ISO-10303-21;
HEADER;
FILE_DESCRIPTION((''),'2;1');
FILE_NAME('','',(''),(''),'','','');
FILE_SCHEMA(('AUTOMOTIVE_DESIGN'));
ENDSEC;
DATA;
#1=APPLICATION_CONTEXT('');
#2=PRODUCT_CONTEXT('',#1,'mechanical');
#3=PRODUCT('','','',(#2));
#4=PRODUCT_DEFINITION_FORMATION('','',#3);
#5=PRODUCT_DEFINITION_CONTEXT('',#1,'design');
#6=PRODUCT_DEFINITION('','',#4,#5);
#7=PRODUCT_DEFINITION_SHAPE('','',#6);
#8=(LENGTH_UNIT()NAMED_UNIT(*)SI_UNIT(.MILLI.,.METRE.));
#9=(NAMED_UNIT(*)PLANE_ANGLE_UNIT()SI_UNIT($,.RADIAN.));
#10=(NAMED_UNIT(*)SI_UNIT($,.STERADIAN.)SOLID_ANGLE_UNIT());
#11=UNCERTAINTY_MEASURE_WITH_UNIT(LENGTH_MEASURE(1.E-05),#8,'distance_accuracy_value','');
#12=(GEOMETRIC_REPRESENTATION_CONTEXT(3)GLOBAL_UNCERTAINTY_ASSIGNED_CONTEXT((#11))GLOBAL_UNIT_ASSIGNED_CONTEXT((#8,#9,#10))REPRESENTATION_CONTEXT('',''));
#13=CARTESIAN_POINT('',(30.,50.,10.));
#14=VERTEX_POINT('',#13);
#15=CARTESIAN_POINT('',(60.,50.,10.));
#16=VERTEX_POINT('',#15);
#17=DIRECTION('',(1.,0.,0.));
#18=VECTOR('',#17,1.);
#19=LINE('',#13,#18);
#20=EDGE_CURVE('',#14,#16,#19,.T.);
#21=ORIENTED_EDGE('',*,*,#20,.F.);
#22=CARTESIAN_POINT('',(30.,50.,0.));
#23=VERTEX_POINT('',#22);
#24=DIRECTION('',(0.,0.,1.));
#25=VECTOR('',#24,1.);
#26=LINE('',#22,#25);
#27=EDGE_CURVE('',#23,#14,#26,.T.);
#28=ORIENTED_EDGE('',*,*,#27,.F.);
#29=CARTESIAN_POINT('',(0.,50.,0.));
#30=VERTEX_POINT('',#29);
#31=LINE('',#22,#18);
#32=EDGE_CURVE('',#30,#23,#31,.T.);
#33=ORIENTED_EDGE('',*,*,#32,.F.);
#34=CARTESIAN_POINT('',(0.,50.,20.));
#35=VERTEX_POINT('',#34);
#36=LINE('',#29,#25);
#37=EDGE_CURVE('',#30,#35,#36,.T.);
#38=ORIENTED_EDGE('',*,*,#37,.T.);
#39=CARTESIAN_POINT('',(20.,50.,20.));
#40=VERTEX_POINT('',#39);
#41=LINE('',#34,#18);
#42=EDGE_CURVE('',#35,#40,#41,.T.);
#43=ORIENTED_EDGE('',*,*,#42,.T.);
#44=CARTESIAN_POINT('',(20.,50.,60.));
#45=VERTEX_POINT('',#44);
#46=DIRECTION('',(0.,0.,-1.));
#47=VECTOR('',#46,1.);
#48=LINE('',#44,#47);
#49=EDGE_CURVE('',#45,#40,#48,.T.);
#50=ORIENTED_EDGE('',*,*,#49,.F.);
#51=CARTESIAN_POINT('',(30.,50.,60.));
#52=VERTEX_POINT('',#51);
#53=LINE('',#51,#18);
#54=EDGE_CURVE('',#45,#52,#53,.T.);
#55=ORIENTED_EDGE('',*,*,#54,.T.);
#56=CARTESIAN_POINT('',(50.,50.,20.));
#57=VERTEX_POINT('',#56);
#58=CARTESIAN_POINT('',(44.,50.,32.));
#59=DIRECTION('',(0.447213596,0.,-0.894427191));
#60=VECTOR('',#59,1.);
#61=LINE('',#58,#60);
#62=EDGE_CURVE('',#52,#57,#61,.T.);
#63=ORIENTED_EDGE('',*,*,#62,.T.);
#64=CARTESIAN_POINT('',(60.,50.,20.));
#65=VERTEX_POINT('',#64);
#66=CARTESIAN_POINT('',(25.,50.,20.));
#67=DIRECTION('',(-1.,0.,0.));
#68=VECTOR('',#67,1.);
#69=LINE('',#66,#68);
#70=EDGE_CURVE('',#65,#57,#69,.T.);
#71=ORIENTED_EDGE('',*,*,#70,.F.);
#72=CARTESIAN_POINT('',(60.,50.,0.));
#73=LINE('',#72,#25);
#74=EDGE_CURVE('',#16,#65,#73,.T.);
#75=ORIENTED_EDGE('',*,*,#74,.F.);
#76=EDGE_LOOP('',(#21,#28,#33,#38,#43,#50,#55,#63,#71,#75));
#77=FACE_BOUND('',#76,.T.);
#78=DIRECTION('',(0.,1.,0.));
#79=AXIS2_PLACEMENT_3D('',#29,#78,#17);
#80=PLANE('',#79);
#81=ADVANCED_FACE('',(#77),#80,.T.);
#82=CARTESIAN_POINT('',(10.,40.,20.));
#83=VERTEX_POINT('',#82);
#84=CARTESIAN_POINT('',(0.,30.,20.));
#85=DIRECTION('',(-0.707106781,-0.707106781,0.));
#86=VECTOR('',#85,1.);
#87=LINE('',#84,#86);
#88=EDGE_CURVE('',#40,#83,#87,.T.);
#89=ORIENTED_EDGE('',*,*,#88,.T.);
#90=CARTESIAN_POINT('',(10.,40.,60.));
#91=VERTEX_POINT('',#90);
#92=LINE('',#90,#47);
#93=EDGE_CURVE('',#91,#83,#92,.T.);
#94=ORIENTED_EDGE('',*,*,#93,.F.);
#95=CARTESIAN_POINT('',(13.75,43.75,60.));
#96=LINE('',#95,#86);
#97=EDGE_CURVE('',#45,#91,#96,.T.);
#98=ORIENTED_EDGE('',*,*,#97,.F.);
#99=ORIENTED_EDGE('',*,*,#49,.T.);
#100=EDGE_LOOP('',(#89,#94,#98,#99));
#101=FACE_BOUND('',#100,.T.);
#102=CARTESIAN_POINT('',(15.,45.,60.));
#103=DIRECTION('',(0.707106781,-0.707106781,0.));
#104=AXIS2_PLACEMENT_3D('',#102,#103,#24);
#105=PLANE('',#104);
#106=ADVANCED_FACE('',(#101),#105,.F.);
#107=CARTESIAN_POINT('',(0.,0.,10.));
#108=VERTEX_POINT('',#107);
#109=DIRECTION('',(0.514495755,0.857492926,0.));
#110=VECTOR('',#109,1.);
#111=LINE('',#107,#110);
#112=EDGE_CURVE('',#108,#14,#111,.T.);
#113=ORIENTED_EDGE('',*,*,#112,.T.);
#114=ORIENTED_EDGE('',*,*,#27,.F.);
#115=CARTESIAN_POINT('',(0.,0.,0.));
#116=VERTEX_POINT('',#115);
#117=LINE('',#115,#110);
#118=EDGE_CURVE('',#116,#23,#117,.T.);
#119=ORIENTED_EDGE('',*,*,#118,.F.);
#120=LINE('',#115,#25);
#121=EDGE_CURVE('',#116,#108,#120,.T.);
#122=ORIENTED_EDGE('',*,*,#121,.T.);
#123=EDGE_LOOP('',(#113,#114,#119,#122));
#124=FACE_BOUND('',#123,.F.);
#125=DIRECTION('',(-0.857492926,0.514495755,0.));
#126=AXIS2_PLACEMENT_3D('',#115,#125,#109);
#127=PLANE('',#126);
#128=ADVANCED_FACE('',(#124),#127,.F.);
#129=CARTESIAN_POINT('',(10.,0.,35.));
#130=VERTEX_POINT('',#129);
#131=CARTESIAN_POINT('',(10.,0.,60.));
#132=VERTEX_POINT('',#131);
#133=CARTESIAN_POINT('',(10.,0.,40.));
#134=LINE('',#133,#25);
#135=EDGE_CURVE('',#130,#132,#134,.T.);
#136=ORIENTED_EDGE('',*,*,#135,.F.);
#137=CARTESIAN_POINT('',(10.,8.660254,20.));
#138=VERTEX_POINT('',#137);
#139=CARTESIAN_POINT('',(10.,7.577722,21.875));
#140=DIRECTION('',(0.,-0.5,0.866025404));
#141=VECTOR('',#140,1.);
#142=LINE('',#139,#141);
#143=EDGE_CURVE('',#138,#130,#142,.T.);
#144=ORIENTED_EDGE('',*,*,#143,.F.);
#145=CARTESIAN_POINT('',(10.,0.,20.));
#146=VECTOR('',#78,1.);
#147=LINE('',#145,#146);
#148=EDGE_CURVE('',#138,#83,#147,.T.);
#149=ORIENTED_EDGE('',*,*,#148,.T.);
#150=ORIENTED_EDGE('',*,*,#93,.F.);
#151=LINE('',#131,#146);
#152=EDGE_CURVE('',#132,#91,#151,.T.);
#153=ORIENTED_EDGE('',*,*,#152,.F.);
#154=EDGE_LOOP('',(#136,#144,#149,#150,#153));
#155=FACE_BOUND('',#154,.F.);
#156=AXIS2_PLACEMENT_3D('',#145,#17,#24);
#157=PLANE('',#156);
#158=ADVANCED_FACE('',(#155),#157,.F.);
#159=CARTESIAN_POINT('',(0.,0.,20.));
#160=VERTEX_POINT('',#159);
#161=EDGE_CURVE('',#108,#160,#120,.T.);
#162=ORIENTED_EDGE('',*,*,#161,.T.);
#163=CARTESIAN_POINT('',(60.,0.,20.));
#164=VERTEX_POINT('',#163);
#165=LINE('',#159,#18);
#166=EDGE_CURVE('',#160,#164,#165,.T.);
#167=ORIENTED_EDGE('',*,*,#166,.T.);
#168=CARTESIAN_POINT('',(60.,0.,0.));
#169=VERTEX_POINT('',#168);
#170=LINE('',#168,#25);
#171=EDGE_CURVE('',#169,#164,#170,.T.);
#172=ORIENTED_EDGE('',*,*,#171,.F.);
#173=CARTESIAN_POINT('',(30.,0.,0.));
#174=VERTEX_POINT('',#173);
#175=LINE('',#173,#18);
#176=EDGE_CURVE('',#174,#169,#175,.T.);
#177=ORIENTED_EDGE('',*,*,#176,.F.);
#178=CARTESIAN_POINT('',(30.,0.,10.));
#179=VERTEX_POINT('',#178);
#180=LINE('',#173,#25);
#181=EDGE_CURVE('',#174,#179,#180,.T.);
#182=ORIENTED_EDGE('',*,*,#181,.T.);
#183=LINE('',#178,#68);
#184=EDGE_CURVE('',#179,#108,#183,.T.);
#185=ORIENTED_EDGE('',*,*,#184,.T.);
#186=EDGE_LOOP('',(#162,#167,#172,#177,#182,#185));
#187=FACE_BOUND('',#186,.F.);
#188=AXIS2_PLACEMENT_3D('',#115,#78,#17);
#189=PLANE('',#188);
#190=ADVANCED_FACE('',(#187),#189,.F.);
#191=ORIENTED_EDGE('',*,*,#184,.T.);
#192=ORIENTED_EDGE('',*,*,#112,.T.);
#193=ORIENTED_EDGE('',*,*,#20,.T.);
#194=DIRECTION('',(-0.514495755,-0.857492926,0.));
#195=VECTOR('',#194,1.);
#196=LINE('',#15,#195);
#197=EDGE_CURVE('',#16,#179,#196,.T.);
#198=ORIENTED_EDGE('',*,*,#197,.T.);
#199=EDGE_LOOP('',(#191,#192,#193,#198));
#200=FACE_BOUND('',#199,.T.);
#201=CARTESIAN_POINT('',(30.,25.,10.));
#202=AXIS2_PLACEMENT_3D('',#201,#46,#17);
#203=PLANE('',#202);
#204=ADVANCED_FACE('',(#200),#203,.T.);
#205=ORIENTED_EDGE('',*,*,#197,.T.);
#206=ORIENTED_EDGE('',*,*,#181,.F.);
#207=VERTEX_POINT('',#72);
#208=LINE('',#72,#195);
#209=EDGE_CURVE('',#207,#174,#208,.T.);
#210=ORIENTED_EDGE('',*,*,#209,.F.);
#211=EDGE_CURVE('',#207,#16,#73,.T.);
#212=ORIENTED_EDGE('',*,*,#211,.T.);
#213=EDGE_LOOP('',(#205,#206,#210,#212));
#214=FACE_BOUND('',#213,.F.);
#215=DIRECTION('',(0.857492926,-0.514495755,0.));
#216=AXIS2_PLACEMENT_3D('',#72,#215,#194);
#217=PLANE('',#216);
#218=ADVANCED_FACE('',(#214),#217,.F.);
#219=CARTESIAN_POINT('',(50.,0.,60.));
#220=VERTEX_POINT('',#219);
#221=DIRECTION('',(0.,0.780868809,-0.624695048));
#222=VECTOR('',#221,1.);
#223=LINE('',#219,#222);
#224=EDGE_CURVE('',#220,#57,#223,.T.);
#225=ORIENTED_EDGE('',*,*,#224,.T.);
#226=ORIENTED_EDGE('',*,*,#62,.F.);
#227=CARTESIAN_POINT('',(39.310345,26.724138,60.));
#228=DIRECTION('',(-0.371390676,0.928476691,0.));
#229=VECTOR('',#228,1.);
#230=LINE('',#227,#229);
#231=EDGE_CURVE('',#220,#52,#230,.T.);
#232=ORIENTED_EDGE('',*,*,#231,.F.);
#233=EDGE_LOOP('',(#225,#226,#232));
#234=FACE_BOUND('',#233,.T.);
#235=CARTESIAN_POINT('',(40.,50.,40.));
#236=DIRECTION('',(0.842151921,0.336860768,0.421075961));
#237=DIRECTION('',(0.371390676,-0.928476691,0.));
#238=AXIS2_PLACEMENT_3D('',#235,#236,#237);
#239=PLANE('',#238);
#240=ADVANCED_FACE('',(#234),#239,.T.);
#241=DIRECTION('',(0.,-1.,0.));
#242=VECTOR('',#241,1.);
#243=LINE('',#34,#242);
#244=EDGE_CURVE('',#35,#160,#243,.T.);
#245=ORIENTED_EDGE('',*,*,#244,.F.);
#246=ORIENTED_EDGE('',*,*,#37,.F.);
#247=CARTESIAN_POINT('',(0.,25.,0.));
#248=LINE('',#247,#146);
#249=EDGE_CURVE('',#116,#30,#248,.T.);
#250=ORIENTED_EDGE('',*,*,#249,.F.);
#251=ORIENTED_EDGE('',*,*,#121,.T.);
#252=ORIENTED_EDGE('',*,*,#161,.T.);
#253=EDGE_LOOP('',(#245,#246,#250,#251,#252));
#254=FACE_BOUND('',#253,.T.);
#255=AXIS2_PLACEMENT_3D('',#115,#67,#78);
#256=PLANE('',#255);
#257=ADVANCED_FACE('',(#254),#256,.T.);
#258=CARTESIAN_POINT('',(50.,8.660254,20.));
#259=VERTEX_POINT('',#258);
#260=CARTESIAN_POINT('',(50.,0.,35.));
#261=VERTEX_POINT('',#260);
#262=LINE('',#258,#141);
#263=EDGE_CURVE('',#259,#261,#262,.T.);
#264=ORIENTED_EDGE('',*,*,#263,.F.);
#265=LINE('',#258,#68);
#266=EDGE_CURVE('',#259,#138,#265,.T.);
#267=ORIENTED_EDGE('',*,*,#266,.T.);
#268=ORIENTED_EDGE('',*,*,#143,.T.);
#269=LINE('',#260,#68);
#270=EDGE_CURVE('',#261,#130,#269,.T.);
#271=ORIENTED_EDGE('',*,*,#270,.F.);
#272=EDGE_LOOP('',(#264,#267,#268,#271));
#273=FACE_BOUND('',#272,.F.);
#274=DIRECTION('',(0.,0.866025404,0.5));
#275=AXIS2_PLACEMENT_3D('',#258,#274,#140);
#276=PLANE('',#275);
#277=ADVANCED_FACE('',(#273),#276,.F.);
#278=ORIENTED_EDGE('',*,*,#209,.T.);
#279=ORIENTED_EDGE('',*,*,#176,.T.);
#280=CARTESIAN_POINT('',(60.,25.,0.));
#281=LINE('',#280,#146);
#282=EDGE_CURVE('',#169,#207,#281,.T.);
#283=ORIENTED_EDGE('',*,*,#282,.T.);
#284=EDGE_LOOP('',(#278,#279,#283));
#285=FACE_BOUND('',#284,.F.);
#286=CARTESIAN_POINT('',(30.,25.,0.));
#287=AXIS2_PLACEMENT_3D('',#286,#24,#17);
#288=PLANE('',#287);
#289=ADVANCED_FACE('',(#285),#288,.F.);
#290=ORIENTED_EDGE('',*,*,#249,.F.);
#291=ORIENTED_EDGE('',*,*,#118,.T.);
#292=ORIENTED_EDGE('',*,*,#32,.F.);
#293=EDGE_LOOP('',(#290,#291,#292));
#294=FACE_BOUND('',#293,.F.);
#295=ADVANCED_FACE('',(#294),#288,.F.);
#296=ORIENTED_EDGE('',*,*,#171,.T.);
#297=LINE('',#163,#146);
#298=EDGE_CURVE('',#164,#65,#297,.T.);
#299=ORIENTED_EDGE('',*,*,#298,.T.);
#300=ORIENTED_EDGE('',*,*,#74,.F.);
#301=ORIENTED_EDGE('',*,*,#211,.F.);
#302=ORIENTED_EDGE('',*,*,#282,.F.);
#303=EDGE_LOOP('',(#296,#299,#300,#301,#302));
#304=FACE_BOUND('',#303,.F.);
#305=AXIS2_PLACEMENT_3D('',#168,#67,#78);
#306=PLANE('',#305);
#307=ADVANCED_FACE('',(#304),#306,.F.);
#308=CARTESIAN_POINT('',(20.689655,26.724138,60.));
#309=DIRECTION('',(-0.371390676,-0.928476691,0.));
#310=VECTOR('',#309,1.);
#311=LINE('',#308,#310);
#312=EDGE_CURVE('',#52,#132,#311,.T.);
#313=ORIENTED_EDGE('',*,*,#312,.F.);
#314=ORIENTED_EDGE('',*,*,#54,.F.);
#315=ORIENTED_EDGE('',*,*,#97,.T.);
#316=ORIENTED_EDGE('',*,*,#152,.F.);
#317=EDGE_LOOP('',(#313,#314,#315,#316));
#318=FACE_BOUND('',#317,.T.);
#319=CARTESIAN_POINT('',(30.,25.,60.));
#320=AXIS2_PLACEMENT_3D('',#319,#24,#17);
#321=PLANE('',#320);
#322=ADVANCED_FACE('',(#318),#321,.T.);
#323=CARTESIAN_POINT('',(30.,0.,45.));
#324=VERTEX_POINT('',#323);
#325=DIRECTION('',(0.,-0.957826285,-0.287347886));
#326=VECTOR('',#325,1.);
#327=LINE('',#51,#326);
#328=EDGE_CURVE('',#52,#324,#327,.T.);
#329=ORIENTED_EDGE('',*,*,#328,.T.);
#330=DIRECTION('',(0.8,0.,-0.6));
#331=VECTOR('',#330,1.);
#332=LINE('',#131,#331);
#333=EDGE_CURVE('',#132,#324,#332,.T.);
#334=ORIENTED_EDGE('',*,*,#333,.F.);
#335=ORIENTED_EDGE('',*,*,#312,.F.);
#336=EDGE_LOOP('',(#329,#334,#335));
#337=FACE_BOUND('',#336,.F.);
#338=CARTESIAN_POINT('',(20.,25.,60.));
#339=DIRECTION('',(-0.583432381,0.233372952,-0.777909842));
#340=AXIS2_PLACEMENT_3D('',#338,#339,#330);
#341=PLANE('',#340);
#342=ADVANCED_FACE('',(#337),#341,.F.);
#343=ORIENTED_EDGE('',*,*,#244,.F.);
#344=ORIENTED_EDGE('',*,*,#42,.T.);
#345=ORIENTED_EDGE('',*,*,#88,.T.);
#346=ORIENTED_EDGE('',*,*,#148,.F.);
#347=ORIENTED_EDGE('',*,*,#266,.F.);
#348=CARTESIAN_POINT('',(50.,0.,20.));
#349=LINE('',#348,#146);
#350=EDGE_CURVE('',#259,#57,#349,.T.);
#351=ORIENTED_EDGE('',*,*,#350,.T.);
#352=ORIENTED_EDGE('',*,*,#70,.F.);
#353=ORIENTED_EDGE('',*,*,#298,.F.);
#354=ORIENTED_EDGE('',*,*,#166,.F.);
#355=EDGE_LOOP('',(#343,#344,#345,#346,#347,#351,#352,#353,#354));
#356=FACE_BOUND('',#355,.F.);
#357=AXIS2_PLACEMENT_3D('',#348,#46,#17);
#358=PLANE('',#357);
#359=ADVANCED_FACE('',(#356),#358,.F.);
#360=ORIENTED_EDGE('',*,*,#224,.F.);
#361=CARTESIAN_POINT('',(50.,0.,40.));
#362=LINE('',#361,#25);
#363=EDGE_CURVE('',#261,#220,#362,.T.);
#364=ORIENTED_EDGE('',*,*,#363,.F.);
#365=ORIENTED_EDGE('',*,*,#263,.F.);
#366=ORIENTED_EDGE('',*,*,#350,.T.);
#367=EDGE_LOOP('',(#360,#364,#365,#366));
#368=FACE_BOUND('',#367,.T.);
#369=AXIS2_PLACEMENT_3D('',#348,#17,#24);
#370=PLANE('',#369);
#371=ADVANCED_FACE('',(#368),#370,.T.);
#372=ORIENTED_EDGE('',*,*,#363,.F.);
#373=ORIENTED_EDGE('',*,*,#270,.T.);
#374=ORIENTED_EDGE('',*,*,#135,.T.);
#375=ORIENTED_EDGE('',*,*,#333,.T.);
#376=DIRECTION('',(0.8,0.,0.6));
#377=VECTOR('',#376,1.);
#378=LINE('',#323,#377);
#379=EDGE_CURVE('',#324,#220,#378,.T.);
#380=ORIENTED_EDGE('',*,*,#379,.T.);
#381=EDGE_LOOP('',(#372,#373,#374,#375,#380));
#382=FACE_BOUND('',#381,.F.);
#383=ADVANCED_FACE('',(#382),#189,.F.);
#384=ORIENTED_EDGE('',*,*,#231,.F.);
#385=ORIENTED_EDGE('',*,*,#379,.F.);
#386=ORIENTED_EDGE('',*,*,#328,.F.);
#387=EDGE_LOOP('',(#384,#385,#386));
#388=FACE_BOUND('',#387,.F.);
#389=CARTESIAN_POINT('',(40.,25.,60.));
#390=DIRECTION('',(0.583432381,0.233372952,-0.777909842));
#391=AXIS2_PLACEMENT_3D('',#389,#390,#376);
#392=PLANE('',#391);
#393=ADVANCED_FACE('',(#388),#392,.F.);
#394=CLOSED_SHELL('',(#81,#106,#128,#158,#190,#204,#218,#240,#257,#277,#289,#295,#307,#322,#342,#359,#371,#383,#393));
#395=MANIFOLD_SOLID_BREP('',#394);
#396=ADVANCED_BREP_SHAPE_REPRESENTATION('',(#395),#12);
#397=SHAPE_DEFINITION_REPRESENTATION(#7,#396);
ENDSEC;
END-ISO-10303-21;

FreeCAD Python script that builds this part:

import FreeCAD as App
import Part
import Sketcher

V = App.Vector
Q = App.Units.Quantity


def edges_at(feature, points):
    """Names of the edges that pass closest to the given points."""
    edges = feature.Shape.Edges
    near = lambda p: min(range(len(edges)), key=lambda i: edges[i].distToShape(Part.Vertex(*p))[0])
    return sorted({f"Edge{near(p) + 1}" for p in points})


def add_polygon(sketch, points):
    """Adds a closed chain of lines whose ends are joined by coincident constraints."""
    first, n = sketch.GeometryCount, len(points)
    for a, b in zip(points, points[1:] + points[:1]):
        sketch.addGeometry(Part.LineSegment(App.Vector(*a, 0), App.Vector(*b, 0)), False)
    for i in range(n):
        sketch.addConstraint(Sketcher.Constraint("Coincident", first + i, 2, first + (i + 1) % n, 1))

doc = App.newDocument("Part")
body = doc.addObject("PartDesign::Body", "Body")

# Sketch on XY plane
sketch1 = body.newObject("Sketcher::SketchObject", "Sketch")
sketch1.AttachmentSupport = (doc.getObject("XY_Plane"), [""])
sketch1.MapMode = "FlatFace"
add_polygon(sketch1, [(0, 50), (0, 0), (60, 0), (60, 50)])  # lines 0-3
sketch1.addConstraint([
    Sketcher.Constraint("Vertical", 0),
    Sketcher.Constraint("Horizontal", 1),
    Sketcher.Constraint("Vertical", 2),
    Sketcher.Constraint("Horizontal", 3),
    Sketcher.Constraint("Coincident", 0, 2, -1, 1),
    Sketcher.Constraint("DistanceX", 1, 1, 1, 2, Q("60 mm")),
    Sketcher.Constraint("DistanceY", 0, 2, 0, 1, Q("50 mm")),
])
pad1 = body.newObject("PartDesign::Pad", "Pad")
pad1.Profile = sketch1
pad1.Length = 60

# Sketch on XZ plane
sketch2 = body.newObject("Sketcher::SketchObject", "Sketch001")
sketch2.AttachmentSupport = (doc.getObject("XZ_Plane"), [""])
sketch2.MapMode = "FlatFace"
add_polygon(sketch2, [(0, 60), (0, 20), (10, 20), (10, 60)])  # lines 0-3
sketch2.addConstraint([
    Sketcher.Constraint("Vertical", 0),
    Sketcher.Constraint("Horizontal", 1),
    Sketcher.Constraint("Vertical", 2),
    Sketcher.Constraint("Horizontal", 3),
    Sketcher.Constraint("PointOnObject", 0, 2, -2),
    Sketcher.Constraint("DistanceX", 1, 1, 1, 2, Q("10 mm")),
    Sketcher.Constraint("DistanceY", 0, 2, 0, 1, Q("40 mm")),
    Sketcher.Constraint("DistanceY", -1, 1, 0, 2, Q("20 mm")),
])
pocket1 = body.newObject("PartDesign::Pocket", "Pocket")
pocket1.Profile = sketch2
pocket1.Type = "ThroughAll"

# Sketch on XZ plane
sketch3 = body.newObject("Sketcher::SketchObject", "Sketch002")
sketch3.AttachmentSupport = (doc.getObject("XZ_Plane"), [""])
sketch3.MapMode = "FlatFace"
add_polygon(sketch3, [(50, 60), (50, 20), (60, 20), (60, 60)])  # lines 0-3
sketch3.addConstraint([
    Sketcher.Constraint("Vertical", 0),
    Sketcher.Constraint("Horizontal", 1),
    Sketcher.Constraint("Vertical", 2),
    Sketcher.Constraint("Horizontal", 3),
    Sketcher.Constraint("DistanceX", 1, 1, 1, 2, Q("10 mm")),
    Sketcher.Constraint("DistanceY", 0, 2, 0, 1, Q("40 mm")),
    Sketcher.Constraint("DistanceX", -1, 1, 0, 2, Q("50 mm")),
    Sketcher.Constraint("DistanceY", -1, 1, 0, 2, Q("20 mm")),
])
pocket2 = body.newObject("PartDesign::Pocket", "Pocket001")
pocket2.Profile = sketch3
pocket2.Type = "ThroughAll"

# Sketch on XY plane
sketch4 = body.newObject("Sketcher::SketchObject", "Sketch003")
sketch4.AttachmentSupport = (doc.getObject("XY_Plane"), [""])
sketch4.MapMode = "FlatFace"
add_polygon(sketch4, [(30, 0), (0, 0), (30, 50), (60, 50)])  # lines 0-3
sketch4.addConstraint([
    Sketcher.Constraint("Horizontal", 0),
    Sketcher.Constraint("Horizontal", 2),
    Sketcher.Constraint("Coincident", 0, 2, -1, 1),
    Sketcher.Constraint("Parallel", 1, 3),
    Sketcher.Constraint("Vertical", 1, 2, 3, 2),
    Sketcher.Constraint("DistanceX", 0, 2, 0, 1, Q("30 mm")),
    Sketcher.Constraint("DistanceY", -1, 1, 1, 2, Q("50 mm")),
])
pocket3 = body.newObject("PartDesign::Pocket", "Pocket002")
pocket3.Profile = sketch4
pocket3.Length = 10
pocket3.Reversed = True
doc.recompute()

chamfer = body.newObject("PartDesign::Chamfer", "Chamfer")
chamfer.Base = (pocket3, edges_at(pocket3, [(10, 50, 40)]))
chamfer.Size = 10

# Sketch on YZ plane
sketch5 = body.newObject("Sketcher::SketchObject", "Sketch004")
sketch5.AttachmentSupport = (doc.getObject("YZ_Plane"), [""])
sketch5.MapMode = "FlatFace"
sketch5.AttachmentOffset = App.Placement(V(0, 0, 50), App.Rotation())
add_polygon(sketch5, [(9, 20), (0, 35), (0, 20)])  # lines 0-2
sketch5.addConstraint([
    Sketcher.Constraint("Vertical", 1),
    Sketcher.Constraint("Horizontal", 2),
    Sketcher.Constraint("PointOnObject", 0, 2, -2),
    Sketcher.Constraint("DistanceY", 1, 2, 1, 1, Q("15 mm")),
    Sketcher.Constraint("Angle", 0, Q("120 deg")),
    Sketcher.Constraint("DistanceY", -1, 1, 0, 2, Q("35 mm")),
])
pocket4 = body.newObject("PartDesign::Pocket", "Pocket003")
pocket4.Profile = sketch5
pocket4.Type = "ThroughAll"

# Sketch on XZ plane
sketch6 = body.newObject("Sketcher::SketchObject", "Sketch005")
sketch6.AttachmentSupport = (doc.getObject("XZ_Plane"), [""])
sketch6.MapMode = "FlatFace"
add_polygon(sketch6, [(50, 60), (10, 60), (30, 45)])  # lines 0-2
sketch6.addConstraint([
    Sketcher.Constraint("Horizontal", 0),
    Sketcher.Constraint("Equal", 1, 2),
    Sketcher.Constraint("DistanceX", 0, 2, 0, 1, Q("40 mm")),
    Sketcher.Constraint("Distance", 1, Q("25 mm")),
    Sketcher.Constraint("DistanceX", -1, 1, 0, 2, Q("10 mm")),
    Sketcher.Constraint("DistanceY", -1, 1, 0, 2, Q("60 mm")),
])

# Sketch on an angled plane
sketch7 = body.newObject("Sketcher::SketchObject", "Sketch006")
sketch7.Placement = App.Placement(V(0, -12.385321, 41.284404), App.Rotation(V(0, -0.957826285, -0.287347886), V(1, 0, 0), V(0, -0.287347886, 0.957826285), "ZXY"))
sketch7.addGeometry(Part.LineSegment(V(-65, 50, 0), V(-13, 50, 0)), False)
sketch7.addConstraint([
    Sketcher.Constraint("Horizontal", 0),
    Sketcher.Constraint("DistanceY", -1, 1, 0, 1, Q("50 mm")),
    Sketcher.Constraint("DistanceX", 0, 1, 0, 2, Q("52.201533 mm")),
    Sketcher.Constraint("DistanceX", 0, 1, -1, 1, Q("65.132187 mm")),
])
doc.recompute()

subtractivepipe = body.newObject("PartDesign::SubtractivePipe", "SubtractivePipe")
subtractivepipe.Profile = sketch6
subtractivepipe.Spine = (sketch7, ["Edge1"])

# Sketch on XY plane
sketch8 = body.newObject("Sketcher::SketchObject", "Sketch007")
sketch8.AttachmentSupport = (doc.getObject("XY_Plane"), [""])
sketch8.MapMode = "FlatFace"
sketch8.AttachmentOffset = App.Placement(V(0, 0, 60), App.Rotation())
add_polygon(sketch8, [(30, 50), (50, 0), (50, 50)])  # lines 0-2
sketch8.addConstraint([
    Sketcher.Constraint("Vertical", 1),
    Sketcher.Constraint("Horizontal", 2),
    Sketcher.Constraint("PointOnObject", 0, 2, -1),
    Sketcher.Constraint("DistanceX", 2, 2, 2, 1, Q("20 mm")),
    Sketcher.Constraint("DistanceY", 1, 1, 1, 2, Q("50 mm")),
    Sketcher.Constraint("DistanceX", -1, 1, 0, 2, Q("50 mm")),
])

# Sketch on an angled plane
sketch9 = body.newObject("Sketcher::SketchObject", "Sketch008")
sketch9.Placement = App.Placement(V(0, 29.268293, 36.585366), App.Rotation(V(0, -0.780868809, 0.624695048), V(1, 0, 0), V(0, 0.624695048, 0.780868809), "ZXY"))
sketch9.addGeometry(Part.LineSegment(V(37, 50, 0), V(-27, 50, 0)), False)
sketch9.addConstraint([
    Sketcher.Constraint("Horizontal", 0),
    Sketcher.Constraint("DistanceY", -1, 1, 0, 1, Q("50 mm")),
    Sketcher.Constraint("DistanceX", 0, 2, 0, 1, Q("64.031242 mm")),
    Sketcher.Constraint("DistanceX", 0, 2, -1, 1, Q("26.54954 mm")),
])
doc.recompute()

subtractivepipe2 = body.newObject("PartDesign::SubtractivePipe", "SubtractivePipe001")
subtractivepipe2.Profile = sketch8
subtractivepipe2.Spine = (sketch9, ["Edge1"])

doc.recompute()
